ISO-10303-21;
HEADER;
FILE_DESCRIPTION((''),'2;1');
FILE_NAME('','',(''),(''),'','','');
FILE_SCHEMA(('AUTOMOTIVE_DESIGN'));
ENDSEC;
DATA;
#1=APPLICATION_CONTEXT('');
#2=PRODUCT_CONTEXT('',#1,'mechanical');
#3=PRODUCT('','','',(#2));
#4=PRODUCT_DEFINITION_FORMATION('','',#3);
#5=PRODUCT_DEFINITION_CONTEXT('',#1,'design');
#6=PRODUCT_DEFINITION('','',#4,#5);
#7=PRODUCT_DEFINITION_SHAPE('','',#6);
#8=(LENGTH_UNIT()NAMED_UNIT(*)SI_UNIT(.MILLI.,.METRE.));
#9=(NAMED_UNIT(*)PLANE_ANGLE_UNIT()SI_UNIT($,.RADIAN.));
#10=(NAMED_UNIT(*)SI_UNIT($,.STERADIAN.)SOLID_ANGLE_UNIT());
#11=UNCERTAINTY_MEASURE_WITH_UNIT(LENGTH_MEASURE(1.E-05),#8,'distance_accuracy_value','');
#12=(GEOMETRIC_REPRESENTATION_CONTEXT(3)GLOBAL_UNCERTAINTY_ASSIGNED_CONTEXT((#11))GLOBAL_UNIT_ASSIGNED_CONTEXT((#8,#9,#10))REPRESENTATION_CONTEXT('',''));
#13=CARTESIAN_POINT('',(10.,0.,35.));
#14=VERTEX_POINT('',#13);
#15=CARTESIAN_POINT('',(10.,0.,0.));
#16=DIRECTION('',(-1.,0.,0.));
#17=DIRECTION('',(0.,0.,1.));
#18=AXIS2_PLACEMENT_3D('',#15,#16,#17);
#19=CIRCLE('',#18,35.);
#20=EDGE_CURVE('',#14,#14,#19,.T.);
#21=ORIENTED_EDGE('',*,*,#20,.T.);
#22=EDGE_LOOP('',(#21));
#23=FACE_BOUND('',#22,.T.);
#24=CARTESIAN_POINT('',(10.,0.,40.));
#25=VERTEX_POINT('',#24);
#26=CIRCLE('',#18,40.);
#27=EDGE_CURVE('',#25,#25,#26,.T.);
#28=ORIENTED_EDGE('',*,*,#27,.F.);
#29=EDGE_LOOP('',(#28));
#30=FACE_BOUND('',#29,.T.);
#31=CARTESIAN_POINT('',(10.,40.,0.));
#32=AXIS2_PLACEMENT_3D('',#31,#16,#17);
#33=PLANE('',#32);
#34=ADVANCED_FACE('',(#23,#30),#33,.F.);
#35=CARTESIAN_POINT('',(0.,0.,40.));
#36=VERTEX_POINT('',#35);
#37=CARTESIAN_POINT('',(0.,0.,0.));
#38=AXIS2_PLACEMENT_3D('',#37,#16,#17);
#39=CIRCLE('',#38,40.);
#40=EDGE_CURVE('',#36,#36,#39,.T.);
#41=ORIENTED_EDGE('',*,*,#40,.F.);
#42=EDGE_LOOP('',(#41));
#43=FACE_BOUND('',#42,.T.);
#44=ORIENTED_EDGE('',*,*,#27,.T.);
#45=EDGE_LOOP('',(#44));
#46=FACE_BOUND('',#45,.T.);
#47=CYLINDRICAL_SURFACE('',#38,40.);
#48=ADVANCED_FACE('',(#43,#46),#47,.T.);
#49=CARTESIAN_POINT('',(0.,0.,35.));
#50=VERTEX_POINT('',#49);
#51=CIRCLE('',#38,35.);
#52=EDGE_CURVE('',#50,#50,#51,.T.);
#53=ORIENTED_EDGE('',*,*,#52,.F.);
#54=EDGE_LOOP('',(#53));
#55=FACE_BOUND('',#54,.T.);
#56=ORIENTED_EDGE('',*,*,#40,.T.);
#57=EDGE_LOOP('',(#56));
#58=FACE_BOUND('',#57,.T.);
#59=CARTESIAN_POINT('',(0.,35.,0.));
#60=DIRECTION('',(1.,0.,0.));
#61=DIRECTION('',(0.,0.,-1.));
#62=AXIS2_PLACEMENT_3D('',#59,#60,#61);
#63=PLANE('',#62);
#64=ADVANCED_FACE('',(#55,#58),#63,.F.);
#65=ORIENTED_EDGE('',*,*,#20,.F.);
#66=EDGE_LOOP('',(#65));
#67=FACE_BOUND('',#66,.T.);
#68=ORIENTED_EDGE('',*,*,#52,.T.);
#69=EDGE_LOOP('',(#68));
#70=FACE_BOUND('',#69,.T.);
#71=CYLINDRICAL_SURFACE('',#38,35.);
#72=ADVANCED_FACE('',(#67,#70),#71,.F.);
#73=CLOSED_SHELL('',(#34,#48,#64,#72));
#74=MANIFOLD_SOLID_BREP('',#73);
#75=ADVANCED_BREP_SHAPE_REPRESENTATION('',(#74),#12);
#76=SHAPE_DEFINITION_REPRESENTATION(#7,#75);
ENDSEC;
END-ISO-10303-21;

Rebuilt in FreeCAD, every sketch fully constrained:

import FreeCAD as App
import Part
import Sketcher

V = App.Vector
Q = App.Units.Quantity

doc = App.newDocument("Part")
params = doc.addObject("Spreadsheet::Sheet", "Params")
for row, (alias, value) in enumerate([
    ("sketch1_width", "10 mm"),
    ("sketch1_height", "5 mm"),
    ("revolution_angle", "360 deg"),
], start=1):
    params.set(f"A{row}", alias)
    params.set(f"B{row}", "=" + value)
    params.setAlias(f"B{row}", alias)

body = doc.addObject("PartDesign::Body", "Body")

# Sketch on XY plane
sketch1 = body.newObject("Sketcher::SketchObject", "Sketch")
sketch1.AttachmentSupport = (doc.getObject("XY_Plane"), [""])
sketch1.MapMode = "FlatFace"
sketch1.addGeometry([
    Part.LineSegment(V(0, 40, 0), V(0, 35, 0)),
    Part.LineSegment(V(0, 35, 0), V(10, 35, 0)),
    Part.LineSegment(V(10, 35, 0), V(10, 40, 0)),
    Part.LineSegment(V(10, 40, 0), V(0, 40, 0)),
], False)
sketch1.addConstraint([
    Sketcher.Constraint("Coincident", 0, 2, 1, 1),
    Sketcher.Constraint("Coincident", 1, 2, 2, 1),
    Sketcher.Constraint("Coincident", 2, 2, 3, 1),
    Sketcher.Constraint("Coincident", 3, 2, 0, 1),
    Sketcher.Constraint("Vertical", 0),
    Sketcher.Constraint("Horizontal", 1),
    Sketcher.Constraint("Vertical", 2),
    Sketcher.Constraint("Horizontal", 3),
    Sketcher.Constraint("PointOnObject", 0, 2, -2),
    Sketcher.Constraint("DistanceX", 1, 1, 1, 2, Q("10 mm")),
    Sketcher.Constraint("DistanceY", 0, 2, 0, 1, Q("5 mm")),
    Sketcher.Constraint("DistanceY", -1, 1, 0, 2, Q("35 mm")),
])
sketch1.setExpression("Constraints[9]", "Params.sketch1_width")
sketch1.setExpression("Constraints[10]", "Params.sketch1_height")
revolution = body.newObject("PartDesign::Revolution", "Revolution")
revolution.Profile = sketch1
revolution.ReferenceAxis = (sketch1, ["H_Axis"])
revolution.setExpression("Angle", "Params.revolution_angle")

doc.recompute()
